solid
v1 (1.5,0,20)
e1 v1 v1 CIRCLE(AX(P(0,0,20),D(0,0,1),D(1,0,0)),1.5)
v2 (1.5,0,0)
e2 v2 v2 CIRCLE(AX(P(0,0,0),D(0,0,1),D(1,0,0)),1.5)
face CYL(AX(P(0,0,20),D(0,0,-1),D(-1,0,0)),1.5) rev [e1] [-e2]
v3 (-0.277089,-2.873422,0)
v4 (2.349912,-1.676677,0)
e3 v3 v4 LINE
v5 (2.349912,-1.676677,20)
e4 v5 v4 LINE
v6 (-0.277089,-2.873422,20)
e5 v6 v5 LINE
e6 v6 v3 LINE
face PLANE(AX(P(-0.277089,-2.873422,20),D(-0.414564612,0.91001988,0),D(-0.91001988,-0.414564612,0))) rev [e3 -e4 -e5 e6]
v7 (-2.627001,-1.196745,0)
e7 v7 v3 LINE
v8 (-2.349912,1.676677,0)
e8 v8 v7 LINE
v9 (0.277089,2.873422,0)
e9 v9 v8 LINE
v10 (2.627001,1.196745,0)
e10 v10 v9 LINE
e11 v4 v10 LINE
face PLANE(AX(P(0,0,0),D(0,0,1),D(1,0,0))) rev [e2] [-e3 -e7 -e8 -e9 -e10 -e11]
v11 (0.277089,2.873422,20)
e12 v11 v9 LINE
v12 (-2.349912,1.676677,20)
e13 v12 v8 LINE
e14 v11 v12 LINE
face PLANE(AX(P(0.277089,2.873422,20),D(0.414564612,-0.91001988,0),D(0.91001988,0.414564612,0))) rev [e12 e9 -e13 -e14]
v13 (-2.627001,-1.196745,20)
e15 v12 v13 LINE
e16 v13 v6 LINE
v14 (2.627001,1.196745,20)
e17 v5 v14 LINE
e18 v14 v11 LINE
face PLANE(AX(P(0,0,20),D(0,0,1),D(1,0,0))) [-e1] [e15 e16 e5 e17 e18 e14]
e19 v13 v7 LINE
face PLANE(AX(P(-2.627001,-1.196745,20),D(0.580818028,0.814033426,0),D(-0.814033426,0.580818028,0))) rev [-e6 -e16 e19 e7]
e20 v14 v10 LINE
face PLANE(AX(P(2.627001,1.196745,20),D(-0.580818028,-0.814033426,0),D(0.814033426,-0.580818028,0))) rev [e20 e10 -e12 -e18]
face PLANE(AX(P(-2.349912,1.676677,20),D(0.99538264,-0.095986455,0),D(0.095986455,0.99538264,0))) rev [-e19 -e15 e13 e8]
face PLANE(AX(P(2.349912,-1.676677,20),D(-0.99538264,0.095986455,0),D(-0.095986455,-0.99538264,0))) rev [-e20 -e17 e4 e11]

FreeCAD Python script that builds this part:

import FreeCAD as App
import Part
import Sketcher
from FreeCAD import Vector

doc = App.newDocument("Part")
params = doc.addObject("Spreadsheet::Sheet", "Params")
for row, (alias, value) in enumerate([
    ("sketch1_diameter", "3 mm"),
    ("pad1_length", "20 mm"),
], start=1):
    params.set(f"A{row}", alias)
    params.set(f"B{row}", "=" + value)
    params.setAlias(f"B{row}", alias)

body = doc.addObject("PartDesign::Body", "Body")

# Sketch on XY plane
sketch1 = body.newObject("Sketcher::SketchObject", "Sketch")
sketch1.AttachmentSupport = (doc.getObject("XY_Plane"), [""])
sketch1.MapMode = "FlatFace"
sketch1.addGeometry(Part.LineSegment(Vector(2.6, 1.2, 0), Vector(0.3, 2.9, 0)), False)
sketch1.addGeometry(Part.LineSegment(Vector(0.3, 2.9, 0), Vector(-2.3, 1.7, 0)), False)
sketch1.addGeometry(Part.LineSegment(Vector(-2.3, 1.7, 0), Vector(-2.6, -1.2, 0)), False)
sketch1.addGeometry(Part.LineSegment(Vector(-2.6, -1.2, 0), Vector(-0.3, -2.9, 0)), False)
sketch1.addGeometry(Part.LineSegment(Vector(-0.3, -2.9, 0), Vector(2.3, -1.7, 0)), False)
sketch1.addGeometry(Part.LineSegment(Vector(2.3, -1.7, 0), Vector(2.6, 1.2, 0)), False)
sketch1.addGeometry(Part.Circle(Vector(0, 0, 0), Vector(0, 0, 1), 1.5), False)
sketch1.addConstraint(Sketcher.Constraint("Coincident", 0, 2, 1, 1))
sketch1.addConstraint(Sketcher.Constraint("Coincident", 1, 2, 2, 1))
sketch1.addConstraint(Sketcher.Constraint("Coincident", 2, 2, 3, 1))
sketch1.addConstraint(Sketcher.Constraint("Coincident", 3, 2, 4, 1))
sketch1.addConstraint(Sketcher.Constraint("Coincident", 4, 2, 5, 1))
sketch1.addConstraint(Sketcher.Constraint("Coincident", 5, 2, 0, 1))
sketch1.addConstraint(Sketcher.Constraint("Coincident", 6, 3, -1, 1))
sketch1.addConstraint(Sketcher.Constraint("Symmetric", 0, 2, 3, 2, -1, 1))
sketch1.addConstraint(Sketcher.Constraint("Symmetric", 1, 2, 4, 2, -1, 1))
sketch1.addConstraint(Sketcher.Constraint("Symmetric", 2, 2, 5, 2, -1, 1))
sketch1.addConstraint(Sketcher.Constraint("Equal", 0, 1))
sketch1.addConstraint(Sketcher.Constraint("Equal", 1, 2))
sketch1.addConstraint(Sketcher.Constraint("Diameter", 6, 3.0))
sketch1.addConstraint(Sketcher.Constraint("DistanceX", 2, 2, -1, 1, 2.627001))
sketch1.addConstraint(Sketcher.Constraint("DistanceX", 1, 2, 0, 2, 2.627001))
sketch1.addConstraint(Sketcher.Constraint("DistanceY", 3, 2, 1, 2, 4.550099))
sketch1.addConstraint(Sketcher.Constraint("Distance", 0, 2.886751))
sketch1.setExpression("Constraints[12]", "Params.sketch1_diameter")
pad1 = body.newObject("PartDesign::Pad", "Pad")
pad1.Profile = sketch1
pad1.setExpression("Length", "Params.pad1_length")

doc.recompute()
